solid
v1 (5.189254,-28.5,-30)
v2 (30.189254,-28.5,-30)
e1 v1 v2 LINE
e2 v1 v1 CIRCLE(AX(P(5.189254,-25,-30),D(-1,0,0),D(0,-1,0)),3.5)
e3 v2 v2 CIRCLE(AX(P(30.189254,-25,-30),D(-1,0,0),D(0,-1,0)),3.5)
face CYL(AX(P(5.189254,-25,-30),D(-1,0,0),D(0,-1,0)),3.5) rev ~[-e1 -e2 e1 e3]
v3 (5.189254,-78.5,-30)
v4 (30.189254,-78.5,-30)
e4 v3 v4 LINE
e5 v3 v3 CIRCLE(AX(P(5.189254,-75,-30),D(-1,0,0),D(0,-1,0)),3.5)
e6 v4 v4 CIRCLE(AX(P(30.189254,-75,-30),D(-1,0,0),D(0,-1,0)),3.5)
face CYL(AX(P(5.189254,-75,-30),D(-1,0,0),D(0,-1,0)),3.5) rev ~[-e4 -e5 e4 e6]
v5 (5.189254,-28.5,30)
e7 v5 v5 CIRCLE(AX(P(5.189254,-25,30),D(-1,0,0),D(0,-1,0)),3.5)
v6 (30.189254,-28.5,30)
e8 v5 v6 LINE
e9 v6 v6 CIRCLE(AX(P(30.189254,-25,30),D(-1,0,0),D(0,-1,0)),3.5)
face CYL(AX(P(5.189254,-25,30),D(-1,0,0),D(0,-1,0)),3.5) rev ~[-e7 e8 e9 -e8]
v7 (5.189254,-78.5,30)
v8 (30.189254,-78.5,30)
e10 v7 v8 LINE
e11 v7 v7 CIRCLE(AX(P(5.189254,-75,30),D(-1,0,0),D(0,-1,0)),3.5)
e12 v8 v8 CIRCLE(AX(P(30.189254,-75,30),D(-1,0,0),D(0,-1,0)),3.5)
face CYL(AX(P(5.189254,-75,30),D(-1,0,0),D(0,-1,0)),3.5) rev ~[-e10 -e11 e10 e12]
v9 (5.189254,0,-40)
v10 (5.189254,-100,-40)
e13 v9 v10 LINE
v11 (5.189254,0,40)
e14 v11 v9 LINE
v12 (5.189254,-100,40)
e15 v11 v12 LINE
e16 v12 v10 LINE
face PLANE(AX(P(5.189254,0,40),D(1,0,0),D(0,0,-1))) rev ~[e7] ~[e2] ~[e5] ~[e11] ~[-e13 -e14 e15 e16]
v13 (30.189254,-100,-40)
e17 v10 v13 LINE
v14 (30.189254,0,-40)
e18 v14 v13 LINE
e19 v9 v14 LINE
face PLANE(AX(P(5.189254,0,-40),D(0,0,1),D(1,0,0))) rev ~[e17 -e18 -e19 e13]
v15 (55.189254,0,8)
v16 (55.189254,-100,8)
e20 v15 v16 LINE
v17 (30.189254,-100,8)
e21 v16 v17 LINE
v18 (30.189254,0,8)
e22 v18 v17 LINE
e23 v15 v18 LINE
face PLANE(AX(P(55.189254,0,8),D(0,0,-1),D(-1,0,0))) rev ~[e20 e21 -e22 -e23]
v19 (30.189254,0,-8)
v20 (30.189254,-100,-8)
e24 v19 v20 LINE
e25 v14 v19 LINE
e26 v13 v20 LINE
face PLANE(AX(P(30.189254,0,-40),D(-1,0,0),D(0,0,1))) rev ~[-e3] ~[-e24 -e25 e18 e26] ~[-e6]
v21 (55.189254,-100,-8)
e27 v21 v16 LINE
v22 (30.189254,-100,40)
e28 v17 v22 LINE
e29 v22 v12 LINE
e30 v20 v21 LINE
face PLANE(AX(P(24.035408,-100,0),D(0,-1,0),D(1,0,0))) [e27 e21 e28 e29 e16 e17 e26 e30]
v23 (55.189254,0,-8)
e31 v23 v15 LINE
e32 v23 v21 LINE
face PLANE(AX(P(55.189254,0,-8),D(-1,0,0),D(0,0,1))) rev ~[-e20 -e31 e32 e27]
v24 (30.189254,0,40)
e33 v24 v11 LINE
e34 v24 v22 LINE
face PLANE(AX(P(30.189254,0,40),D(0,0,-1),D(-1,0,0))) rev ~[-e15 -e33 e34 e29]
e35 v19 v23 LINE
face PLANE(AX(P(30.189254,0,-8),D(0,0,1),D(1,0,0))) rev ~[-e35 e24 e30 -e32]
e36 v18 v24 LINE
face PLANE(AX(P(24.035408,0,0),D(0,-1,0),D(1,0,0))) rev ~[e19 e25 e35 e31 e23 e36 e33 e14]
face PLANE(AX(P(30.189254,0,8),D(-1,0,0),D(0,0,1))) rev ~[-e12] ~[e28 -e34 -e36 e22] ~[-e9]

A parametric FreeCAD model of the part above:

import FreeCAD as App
import Part
import Sketcher

V = App.Vector

doc = App.newDocument("Part")
body = doc.addObject("PartDesign::Body", "Body")

sketch1 = body.newObject("Sketcher::SketchObject", "Sketch")
sketch1.AttachmentSupport = (doc.getObject("XZ_Plane"), [""])
sketch1.MapMode = "FlatFace"
sketch1.addGeometry([
    Part.LineSegment(V(5.189254, 40, 0), V(5.189254, -40, 0)),
    Part.LineSegment(V(5.189254, -40, 0), V(30.189254, -40, 0)),
    Part.LineSegment(V(30.189254, -40, 0), V(30.189254, -8, 0)),
    Part.LineSegment(V(30.189254, -8, 0), V(55.189254, -8, 0)),
    Part.LineSegment(V(55.189254, -8, 0), V(55.189254, 8, 0)),
    Part.LineSegment(V(55.189254, 8, 0), V(30.189254, 8, 0)),
    Part.LineSegment(V(30.189254, 8, 0), V(30.189254, 40, 0)),
    Part.LineSegment(V(30.189254, 40, 0), V(5.189254, 40, 0)),
], False)
sketch1.addConstraint([
    Sketcher.Constraint("Coincident", 0, 2, 1, 1),
    Sketcher.Constraint("Coincident", 1, 2, 2, 1),
    Sketcher.Constraint("Coincident", 2, 2, 3, 1),
    Sketcher.Constraint("Coincident", 3, 2, 4, 1),
    Sketcher.Constraint("Coincident", 4, 2, 5, 1),
    Sketcher.Constraint("Coincident", 5, 2, 6, 1),
    Sketcher.Constraint("Coincident", 6, 2, 7, 1),
    Sketcher.Constraint("Coincident", 7, 2, 0, 1),
    Sketcher.Constraint("Vertical", 0),
    Sketcher.Constraint("Horizontal", 1),
    Sketcher.Constraint("Vertical", 2),
    Sketcher.Constraint("Horizontal", 3),
    Sketcher.Constraint("Vertical", 4),
    Sketcher.Constraint("Horizontal", 5),
    Sketcher.Constraint("Vertical", 6),
    Sketcher.Constraint("Horizontal", 7),
    Sketcher.Constraint("Symmetric", 2, 2, 5, 2, -1),
    Sketcher.Constraint("Equal", 1, 3),
    Sketcher.Constraint("Equal", 2, 6),
    Sketcher.Constraint("DistanceX", 1, 1, 1, 2, 25.0),
    Sketcher.Constraint("DistanceY", 0, 2, 0, 1, 80.0),
    Sketcher.Constraint("DistanceY", 2, 1, 2, 2, 32.0),
    Sketcher.Constraint("DistanceX", -1, 1, 0, 2, 5.189254),
])
pad1 = body.newObject("PartDesign::Pad", "Pad")
pad1.Profile = sketch1
pad1.Length = 100

sketch2 = body.newObject("Sketcher::SketchObject", "Sketch001")
sketch2.AttachmentSupport = (doc.getObject("YZ_Plane"), [""])
sketch2.MapMode = "FlatFace"
sketch2.AttachmentOffset = App.Placement(V(0, 0, 5.189254), App.Rotation())
sketch2.addGeometry([
    Part.Circle(V(-25, 30, 0), V(0, 0, 1), 3.5),
    Part.Circle(V(-75, 30, 0), V(0, 0, 1), 3.5),
    Part.Circle(V(-25, -30, 0), V(0, 0, 1), 3.5),
    Part.Circle(V(-75, -30, 0), V(0, 0, 1), 3.5),
], False)
sketch2.addConstraint([
    Sketcher.Constraint("Equal", 0, 1),
    Sketcher.Constraint("Equal", 1, 2),
    Sketcher.Constraint("Equal", 2, 3),
    Sketcher.Constraint("Symmetric", 0, 3, 2, 3, -1),
    Sketcher.Constraint("Symmetric", 1, 3, 3, 3, -1),
    Sketcher.Constraint("Horizontal", 0, 3, 1, 3),
    Sketcher.Constraint("Diameter", 0, 7.0),
    Sketcher.Constraint("DistanceX", 0, 3, -1, 1, 25.0),
    Sketcher.Constraint("DistanceY", -1, 1, 0, 3, 30.0),
    Sketcher.Constraint("DistanceX", 1, 3, -1, 1, 75.0),
])
pocket1 = body.newObject("PartDesign::Pocket", "Pocket")
pocket1.Profile = sketch2
pocket1.Length = 100
pocket1.Reversed = True

doc.recompute()
